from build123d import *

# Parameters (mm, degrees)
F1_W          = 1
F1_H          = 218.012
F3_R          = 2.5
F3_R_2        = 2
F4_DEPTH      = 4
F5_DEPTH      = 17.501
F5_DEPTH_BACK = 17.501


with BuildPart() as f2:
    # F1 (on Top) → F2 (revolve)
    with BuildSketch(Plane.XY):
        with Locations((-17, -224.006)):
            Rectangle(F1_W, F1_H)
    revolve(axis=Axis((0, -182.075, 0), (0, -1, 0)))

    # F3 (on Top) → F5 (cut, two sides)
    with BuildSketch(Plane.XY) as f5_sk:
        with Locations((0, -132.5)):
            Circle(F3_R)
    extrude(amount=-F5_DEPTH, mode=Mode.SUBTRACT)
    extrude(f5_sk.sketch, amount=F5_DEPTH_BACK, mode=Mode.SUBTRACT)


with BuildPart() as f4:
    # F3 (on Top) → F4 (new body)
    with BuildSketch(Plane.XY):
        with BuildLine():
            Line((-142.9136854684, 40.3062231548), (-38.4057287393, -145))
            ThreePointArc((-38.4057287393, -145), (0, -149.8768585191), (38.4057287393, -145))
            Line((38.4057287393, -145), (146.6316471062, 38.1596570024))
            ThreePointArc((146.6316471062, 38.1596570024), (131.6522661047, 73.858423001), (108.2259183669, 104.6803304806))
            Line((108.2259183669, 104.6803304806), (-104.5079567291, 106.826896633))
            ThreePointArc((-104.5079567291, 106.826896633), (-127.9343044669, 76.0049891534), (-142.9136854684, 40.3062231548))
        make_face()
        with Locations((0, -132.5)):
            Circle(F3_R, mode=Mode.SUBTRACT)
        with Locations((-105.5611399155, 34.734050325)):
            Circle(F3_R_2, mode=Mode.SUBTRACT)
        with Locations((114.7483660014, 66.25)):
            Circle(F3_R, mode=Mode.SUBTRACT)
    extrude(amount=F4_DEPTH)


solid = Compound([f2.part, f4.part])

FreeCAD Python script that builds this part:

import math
import FreeCAD as App
import Part
import Sketcher
Q = App.Units.Quantity

doc = App.newDocument("Part")
body = doc.addObject("PartDesign::Body", "Body")

# Sketch on XY plane
sketch1 = body.newObject("Sketcher::SketchObject", "Sketch")
sketch1.AttachmentSupport = (doc.getObject("XY_Plane"), [""])
sketch1.MapMode = "FlatFace"
sketch1.addGeometry([
    Part.LineSegment(App.Vector(-17.5, -115, 0), App.Vector(-17.5, -333.012, 0)),
    Part.LineSegment(App.Vector(-17.5, -333.012, 0), App.Vector(-16.5, -333.012, 0)),
    Part.LineSegment(App.Vector(-16.5, -333.012, 0), App.Vector(-16.5, -115, 0)),
    Part.LineSegment(App.Vector(-16.5, -115, 0), App.Vector(-17.5, -115, 0)),
], False)
sketch1.addConstraint([
    Sketcher.Constraint("Coincident", 0, 2, 1, 1),
    Sketcher.Constraint("Coincident", 1, 2, 2, 1),
    Sketcher.Constraint("Coincident", 2, 2, 3, 1),
    Sketcher.Constraint("Coincident", 3, 2, 0, 1),
    Sketcher.Constraint("Vertical", 0),
    Sketcher.Constraint("Horizontal", 1),
    Sketcher.Constraint("Vertical", 2),
    Sketcher.Constraint("Horizontal", 3),
    Sketcher.Constraint("DistanceX", 1, 1, 1, 2, Q("1 mm")),
    Sketcher.Constraint("DistanceY", 2, 2, -1, 1, Q("115 mm")),
    Sketcher.Constraint("DistanceX", 0, 2, -1, 1, Q("17.5 mm")),
    Sketcher.Constraint("DistanceY", 0, 2, 0, 1, Q("218.012 mm")),
])
revolution = body.newObject("PartDesign::Revolution", "Revolution")
revolution.Profile = sketch1
revolution.ReferenceAxis = (sketch1, ["V_Axis"])
revolution.Angle = 360

# Sketch on XY plane
sketch2 = body.newObject("Sketcher::SketchObject", "Sketch001")
sketch2.AttachmentSupport = (doc.getObject("XY_Plane"), [""])
sketch2.MapMode = "FlatFace"
sketch2.addGeometry(Part.Circle(App.Vector(0, -132.5, 0), App.Vector(0, 0, 1), 2.5), False)
sketch2.addConstraint([
    Sketcher.Constraint("PointOnObject", 0, 3, -2),
    Sketcher.Constraint("Diameter", 0, Q("5 mm")),
    Sketcher.Constraint("DistanceY", 0, 3, -1, 1, Q("132.5 mm")),
])
pocket1 = body.newObject("PartDesign::Pocket", "Pocket")
pocket1.Profile = sketch2
pocket1.Type = "ThroughAll"
pocket1.Midplane = True
body2 = doc.addObject("PartDesign::Body", "Body001")

# Sketch on XY plane
sketch3 = body2.newObject("Sketcher::SketchObject", "Sketch002")
sketch3.AttachmentSupport = (doc.getObject("XY_Plane001"), [""])
sketch3.MapMode = "FlatFace"
sketch3.addGeometry([
    Part.LineSegment(App.Vector(-142.913685, 40.306223, 0), App.Vector(-38.405729, -145, 0)),  # 0
    Part.ArcOfCircle(Part.Circle(App.Vector(0, 3.78597, 0), App.Vector(0, 0, 1), 153.662829), math.radians(-104.47367), math.radians(-75.52633)),  # 1
    Part.LineSegment(App.Vector(38.405729, -145, 0), App.Vector(146.631647, 38.159657, 0)),  # 2
    Part.ArcOfCircle(Part.Circle(App.Vector(-1.423647, -2.972991, 0), App.Vector(0, 0, 1), 153.662829), math.radians(15.52633), math.radians(44.47367)),  # 3
    Part.LineSegment(App.Vector(108.225918, 104.68033, 0), App.Vector(-104.507957, 106.826897, 0)),  # 4
    Part.ArcOfCircle(Part.Circle(App.Vector(5.141609, -0.826425, 0), App.Vector(0, 0, 1), 153.662829), math.radians(135.52633), math.radians(164.47367)),  # 5
    Part.Circle(App.Vector(0, -132.5, 0), App.Vector(0, 0, 1), 2.5),  # 6
    Part.Circle(App.Vector(-105.56114, 34.73405, 0), App.Vector(0, 0, 1), 2),  # 7
    Part.Circle(App.Vector(114.748366, 66.25, 0), App.Vector(0, 0, 1), 2.5),  # 8
], False)
sketch3.addConstraint([
    Sketcher.Constraint("Coincident", 0, 2, 1, 1),
    Sketcher.Constraint("Coincident", 1, 2, 2, 1),
    Sketcher.Constraint("Coincident", 2, 2, 3, 1),
    Sketcher.Constraint("Coincident", 3, 2, 4, 1),
    Sketcher.Constraint("Coincident", 4, 2, 5, 1),
    Sketcher.Constraint("Coincident", 5, 2, 0, 1),
    Sketcher.Constraint("PointOnObject", 1, 3, -2),
    Sketcher.Constraint("PointOnObject", 6, 3, -2),
    Sketcher.Constraint("Diameter", 6, Q("5 mm")),
    Sketcher.Constraint("Diameter", 7, Q("4 mm")),
    Sketcher.Constraint("Diameter", 8, Q("5 mm")),
    Sketcher.Constraint("DistanceY", 0, 2, -1, 1, Q("145 mm")),
    Sketcher.Constraint("DistanceY", 1, 2, -1, 1, Q("145 mm")),
    Sketcher.Constraint("DistanceY", 6, 3, -1, 1, Q("132.5 mm")),
    Sketcher.Constraint("DistanceY", -1, 1, 8, 3, Q("66.25 mm")),
    Sketcher.Constraint("Radius", 1, Q("153.662829 mm")),
    Sketcher.Constraint("Radius", 3, Q("153.662829 mm")),
    Sketcher.Constraint("Radius", 5, Q("153.662829 mm")),
    Sketcher.Constraint("DistanceY", -1, 1, 1, 3, Q("3.78597 mm")),
    Sketcher.Constraint("DistanceY", 3, 3, -1, 1, Q("2.972991 mm")),
    Sketcher.Constraint("DistanceX", -1, 1, 5, 3, Q("5.141609 mm")),
    Sketcher.Constraint("DistanceX", 7, 3, -1, 1, Q("105.56114 mm")),
    Sketcher.Constraint("DistanceY", -1, 1, 7, 3, Q("34.73405 mm")),
    Sketcher.Constraint("DistanceX", -1, 1, 3, 2, Q("108.225918 mm")),
    Sketcher.Constraint("DistanceY", -1, 1, 3, 2, Q("104.68033 mm")),
    Sketcher.Constraint("DistanceX", 8, 3, 2, 2, Q("31.883281 mm")),
    Sketcher.Constraint("DistanceX", 5, 3, 2, 2, Q("141.490038 mm")),
    Sketcher.Constraint("DistanceX", 4, 2, 3, 3, Q("103.08431 mm")),
    Sketcher.Constraint("DistanceX", 5, 2, 4, 2, Q("38.405729 mm")),
    Sketcher.Constraint("Distance", 0, Q("212.744705 mm")),
])
pad1 = body2.newObject("PartDesign::Pad", "Pad")
pad1.Profile = sketch3
pad1.Length = 4

doc.recompute()
